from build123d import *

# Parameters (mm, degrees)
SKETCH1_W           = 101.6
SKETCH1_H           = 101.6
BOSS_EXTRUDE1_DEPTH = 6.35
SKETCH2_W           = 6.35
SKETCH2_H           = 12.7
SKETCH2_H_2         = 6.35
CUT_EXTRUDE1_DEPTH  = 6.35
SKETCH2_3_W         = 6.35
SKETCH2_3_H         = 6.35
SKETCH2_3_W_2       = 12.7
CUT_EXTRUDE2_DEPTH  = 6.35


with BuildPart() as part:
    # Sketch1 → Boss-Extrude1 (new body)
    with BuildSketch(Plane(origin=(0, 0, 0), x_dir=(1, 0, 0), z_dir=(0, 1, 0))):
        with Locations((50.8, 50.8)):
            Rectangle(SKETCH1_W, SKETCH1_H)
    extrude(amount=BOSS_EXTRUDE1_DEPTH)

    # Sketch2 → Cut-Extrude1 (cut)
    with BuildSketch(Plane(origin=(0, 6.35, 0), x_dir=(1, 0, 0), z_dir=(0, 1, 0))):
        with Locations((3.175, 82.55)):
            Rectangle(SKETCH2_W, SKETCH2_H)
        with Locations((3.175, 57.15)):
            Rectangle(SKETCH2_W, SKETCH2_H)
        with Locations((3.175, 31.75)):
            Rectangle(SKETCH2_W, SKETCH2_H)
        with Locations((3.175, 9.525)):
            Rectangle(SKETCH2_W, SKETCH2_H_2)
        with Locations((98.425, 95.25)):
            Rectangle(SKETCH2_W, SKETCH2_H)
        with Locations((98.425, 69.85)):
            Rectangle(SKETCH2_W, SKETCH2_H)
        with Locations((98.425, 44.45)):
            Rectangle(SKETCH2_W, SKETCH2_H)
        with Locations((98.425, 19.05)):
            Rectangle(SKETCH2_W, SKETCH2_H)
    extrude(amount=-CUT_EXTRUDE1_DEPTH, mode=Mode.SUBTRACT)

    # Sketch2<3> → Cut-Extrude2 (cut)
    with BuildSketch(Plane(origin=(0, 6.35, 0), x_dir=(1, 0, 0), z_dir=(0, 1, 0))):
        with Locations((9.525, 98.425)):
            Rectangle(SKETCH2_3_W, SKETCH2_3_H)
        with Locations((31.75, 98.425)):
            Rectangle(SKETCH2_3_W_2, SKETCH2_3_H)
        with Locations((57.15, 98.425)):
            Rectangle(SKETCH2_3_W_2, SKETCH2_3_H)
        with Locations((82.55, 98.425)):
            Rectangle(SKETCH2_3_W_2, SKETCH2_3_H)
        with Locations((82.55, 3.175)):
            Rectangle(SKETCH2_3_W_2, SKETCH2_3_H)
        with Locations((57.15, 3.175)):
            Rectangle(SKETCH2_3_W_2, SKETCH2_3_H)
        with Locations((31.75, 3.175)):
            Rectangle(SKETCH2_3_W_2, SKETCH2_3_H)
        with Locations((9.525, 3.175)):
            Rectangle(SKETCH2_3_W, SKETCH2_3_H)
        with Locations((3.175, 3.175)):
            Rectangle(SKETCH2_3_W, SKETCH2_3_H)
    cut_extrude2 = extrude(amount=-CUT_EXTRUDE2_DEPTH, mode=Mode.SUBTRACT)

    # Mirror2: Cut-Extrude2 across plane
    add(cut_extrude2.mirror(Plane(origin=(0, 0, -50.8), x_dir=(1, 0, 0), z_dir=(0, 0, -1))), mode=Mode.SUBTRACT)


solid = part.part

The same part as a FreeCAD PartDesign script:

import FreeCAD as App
import Part
import Sketcher
Q = App.Units.Quantity


def add_polygon(sketch, points):
    """Adds a closed chain of lines whose ends are joined by coincident constraints."""
    first, n = sketch.GeometryCount, len(points)
    for a, b in zip(points, points[1:] + points[:1]):
        sketch.addGeometry(Part.LineSegment(App.Vector(*a, 0), App.Vector(*b, 0)), False)
    for i in range(n):
        sketch.addConstraint(Sketcher.Constraint("Coincident", first + i, 2, first + (i + 1) % n, 1))

doc = App.newDocument("Part")
body = doc.addObject("PartDesign::Body", "Body")

# Sketch on XZ plane
sketch1 = body.newObject("Sketcher::SketchObject", "Sketch")
sketch1.AttachmentSupport = (doc.getObject("XZ_Plane"), [""])
sketch1.MapMode = "FlatFace"
add_polygon(sketch1, [(0, -102), (0, 0), (102, 0), (102, -102)])  # lines 0-3
sketch1.addConstraint(Sketcher.Constraint("Vertical", 0))
sketch1.addConstraint(Sketcher.Constraint("Horizontal", 1))
sketch1.addConstraint(Sketcher.Constraint("Vertical", 2))
sketch1.addConstraint(Sketcher.Constraint("Horizontal", 3))
sketch1.addConstraint(Sketcher.Constraint("Coincident", 0, 2, -1, 1))
sketch1.addConstraint(Sketcher.Constraint("Equal", 3, 0))
sketch1.addConstraint(Sketcher.Constraint("DistanceX", 1, 1, 1, 2, Q("4 in")))
pad1 = body.newObject("PartDesign::Pad", "Pad")
pad1.Profile = sketch1
pad1.Length = Q("0.25 in")
pad1.Reversed = True

# Sketch on XZ plane
sketch2 = body.newObject("Sketcher::SketchObject", "Sketch001")
sketch2.AttachmentSupport = (doc.getObject("XZ_Plane"), [""])
sketch2.MapMode = "FlatFace"
sketch2.AttachmentOffset = App.Placement(App.Vector(0, 0, -0.25 * 25.4), App.Rotation())
add_polygon(sketch2, [(0, -89), (0, -76), (6, -76), (6, -89)])  # lines 0-3
add_polygon(sketch2, [(0, -64), (0, -51), (6, -51), (6, -64)])  # lines 4-7
add_polygon(sketch2, [(0, -38), (0, -25), (6, -25), (6, -38)])  # lines 8-11
add_polygon(sketch2, [(0, -13), (0, -6), (6, -6), (6, -13)])  # lines 12-15
add_polygon(sketch2, [(95, -102), (95, -89), (102, -89), (102, -102)])  # lines 16-19
add_polygon(sketch2, [(95, -76), (95, -64), (102, -64), (102, -76)])  # lines 20-23
add_polygon(sketch2, [(95, -51), (95, -38), (102, -38), (102, -51)])  # lines 24-27
add_polygon(sketch2, [(95, -25), (95, -13), (102, -13), (102, -25)])  # lines 28-31
sketch2.addConstraint(Sketcher.Constraint("Vertical", 0))
sketch2.addConstraint(Sketcher.Constraint("Horizontal", 1))
sketch2.addConstraint(Sketcher.Constraint("Vertical", 2))
sketch2.addConstraint(Sketcher.Constraint("Horizontal", 3))
sketch2.addConstraint(Sketcher.Constraint("Vertical", 4))
sketch2.addConstraint(Sketcher.Constraint("Horizontal", 5))
sketch2.addConstraint(Sketcher.Constraint("Vertical", 6))
sketch2.addConstraint(Sketcher.Constraint("Horizontal", 7))
sketch2.addConstraint(Sketcher.Constraint("Vertical", 8))
sketch2.addConstraint(Sketcher.Constraint("Horizontal", 9))
sketch2.addConstraint(Sketcher.Constraint("Vertical", 10))
sketch2.addConstraint(Sketcher.Constraint("Horizontal", 11))
sketch2.addConstraint(Sketcher.Constraint("Vertical", 12))
sketch2.addConstraint(Sketcher.Constraint("Horizontal", 13))
sketch2.addConstraint(Sketcher.Constraint("Vertical", 14))
sketch2.addConstraint(Sketcher.Constraint("Horizontal", 15))
sketch2.addConstraint(Sketcher.Constraint("Vertical", 16))
sketch2.addConstraint(Sketcher.Constraint("Horizontal", 17))
sketch2.addConstraint(Sketcher.Constraint("Vertical", 18))
sketch2.addConstraint(Sketcher.Constraint("Horizontal", 19))
sketch2.addConstraint(Sketcher.Constraint("Vertical", 20))
sketch2.addConstraint(Sketcher.Constraint("Horizontal", 21))
sketch2.addConstraint(Sketcher.Constraint("Vertical", 22))
sketch2.addConstraint(Sketcher.Constraint("Horizontal", 23))
sketch2.addConstraint(Sketcher.Constraint("Vertical", 24))
sketch2.addConstraint(Sketcher.Constraint("Horizontal", 25))
sketch2.addConstraint(Sketcher.Constraint("Vertical", 26))
sketch2.addConstraint(Sketcher.Constraint("Horizontal", 27))
sketch2.addConstraint(Sketcher.Constraint("Vertical", 28))
sketch2.addConstraint(Sketcher.Constraint("Horizontal", 29))
sketch2.addConstraint(Sketcher.Constraint("Vertical", 30))
sketch2.addConstraint(Sketcher.Constraint("Horizontal", 31))
sketch2.addConstraint(Sketcher.Constraint("PointOnObject", 0, 2, -2))
sketch2.addConstraint(Sketcher.Constraint("PointOnObject", 4, 2, -2))
sketch2.addConstraint(Sketcher.Constraint("PointOnObject", 8, 2, -2))
sketch2.addConstraint(Sketcher.Constraint("PointOnObject", 12, 2, -2))
sketch2.addConstraint(Sketcher.Constraint("Horizontal", 3, 2, 16, 2))
sketch2.addConstraint(Sketcher.Constraint("Horizontal", 7, 2, 20, 2))
sketch2.addConstraint(Sketcher.Constraint("Horizontal", 1, 2, 22, 2))
sketch2.addConstraint(Sketcher.Constraint("Horizontal", 11, 2, 24, 2))
sketch2.addConstraint(Sketcher.Constraint("Horizontal", 5, 2, 26, 2))
sketch2.addConstraint(Sketcher.Constraint("Horizontal", 15, 2, 28, 2))
sketch2.addConstraint(Sketcher.Constraint("Horizontal", 9, 2, 30, 2))
sketch2.addConstraint(Sketcher.Constraint("Vertical", 2, 2, 5, 2))
sketch2.addConstraint(Sketcher.Constraint("Vertical", 6, 2, 9, 2))
sketch2.addConstraint(Sketcher.Constraint("Vertical", 10, 2, 13, 2))
sketch2.addConstraint(Sketcher.Constraint("Vertical", 19, 2, 20, 2))
sketch2.addConstraint(Sketcher.Constraint("Vertical", 18, 2, 21, 2))
sketch2.addConstraint(Sketcher.Constraint("Vertical", 23, 2, 24, 2))
sketch2.addConstraint(Sketcher.Constraint("Vertical", 22, 2, 25, 2))
sketch2.addConstraint(Sketcher.Constraint("Vertical", 27, 2, 28, 2))
sketch2.addConstraint(Sketcher.Constraint("Vertical", 26, 2, 29, 2))
sketch2.addConstraint(Sketcher.Constraint("Equal", 15, 17))
sketch2.addConstraint(Sketcher.Constraint("Equal", 2, 4))
sketch2.addConstraint(Sketcher.Constraint("Equal", 6, 8))
sketch2.addConstraint(Sketcher.Constraint("Equal", 31, 12))
sketch2.addConstraint(Sketcher.Constraint("Equal", 10, 16))
sketch2.addConstraint(Sketcher.Constraint("Equal", 18, 20))
sketch2.addConstraint(Sketcher.Constraint("Equal", 22, 24))
sketch2.addConstraint(Sketcher.Constraint("Equal", 26, 28))
sketch2.addConstraint(Sketcher.Constraint("DistanceY", 0, 1, 0, 2, Q("0.5 in")))
sketch2.addConstraint(Sketcher.Constraint("DistanceY", 0, 2, -1, 1, Q("3 in")))
sketch2.addConstraint(Sketcher.Constraint("DistanceX", -1, 1, 17, 2, Q("4 in")))
sketch2.addConstraint(Sketcher.Constraint("DistanceX", 1, 1, 1, 2, Q("0.25 in")))
pocket1 = body.newObject("PartDesign::Pocket", "Pocket")
pocket1.Profile = sketch2
pocket1.Length = Q("0.25 in")
pocket1.Reversed = True

# Sketch on XZ plane
sketch3 = body.newObject("Sketcher::SketchObject", "Sketch002")
sketch3.AttachmentSupport = (doc.getObject("XZ_Plane"), [""])
sketch3.MapMode = "FlatFace"
sketch3.AttachmentOffset = App.Placement(App.Vector(0, 0, -0.25 * 25.4), App.Rotation())
add_polygon(sketch3, [(6, -102), (6, -95), (13, -95), (13, -102)])  # lines 0-3
add_polygon(sketch3, [(25, -102), (25, -95), (38, -95), (38, -102)])  # lines 4-7
add_polygon(sketch3, [(51, -102), (51, -95), (64, -95), (64, -102)])  # lines 8-11
add_polygon(sketch3, [(76, -102), (76, -95), (89, -95), (89, -102)])  # lines 12-15
add_polygon(sketch3, [(76, -6), (76, 0), (89, 0), (89, -6)])  # lines 16-19
add_polygon(sketch3, [(51, -6), (51, 0), (64, 0), (64, -6)])  # lines 20-23
add_polygon(sketch3, [(25, -6), (25, 0), (38, 0), (38, -6)])  # lines 24-27
add_polygon(sketch3, [(13, 0), (13, -6), (0, -6), (0, 0)])  # lines 28-31
sketch3.addConstraint(Sketcher.Constraint("Vertical", 0))
sketch3.addConstraint(Sketcher.Constraint("Horizontal", 1))
sketch3.addConstraint(Sketcher.Constraint("Vertical", 2))
sketch3.addConstraint(Sketcher.Constraint("Horizontal", 3))
sketch3.addConstraint(Sketcher.Constraint("Vertical", 4))
sketch3.addConstraint(Sketcher.Constraint("Horizontal", 5))
sketch3.addConstraint(Sketcher.Constraint("Vertical", 6))
sketch3.addConstraint(Sketcher.Constraint("Horizontal", 7))
sketch3.addConstraint(Sketcher.Constraint("Vertical", 8))
sketch3.addConstraint(Sketcher.Constraint("Horizontal", 9))
sketch3.addConstraint(Sketcher.Constraint("Vertical", 10))
sketch3.addConstraint(Sketcher.Constraint("Horizontal", 11))
sketch3.addConstraint(Sketcher.Constraint("Vertical", 12))
sketch3.addConstraint(Sketcher.Constraint("Horizontal", 13))
sketch3.addConstraint(Sketcher.Constraint("Vertical", 14))
sketch3.addConstraint(Sketcher.Constraint("Horizontal", 15))
sketch3.addConstraint(Sketcher.Constraint("Vertical", 16))
sketch3.addConstraint(Sketcher.Constraint("Horizontal", 17))
sketch3.addConstraint(Sketcher.Constraint("Vertical", 18))
sketch3.addConstraint(Sketcher.Constraint("Horizontal", 19))
sketch3.addConstraint(Sketcher.Constraint("Vertical", 20))
sketch3.addConstraint(Sketcher.Constraint("Horizontal", 21))
sketch3.addConstraint(Sketcher.Constraint("Vertical", 22))
sketch3.addConstraint(Sketcher.Constraint("Horizontal", 23))
sketch3.addConstraint(Sketcher.Constraint("Vertical", 24))
sketch3.addConstraint(Sketcher.Constraint("Horizontal", 25))
sketch3.addConstraint(Sketcher.Constraint("Vertical", 26))
sketch3.addConstraint(Sketcher.Constraint("Horizontal", 27))
sketch3.addConstraint(Sketcher.Constraint("Vertical", 28))
sketch3.addConstraint(Sketcher.Constraint("Horizontal", 29))
sketch3.addConstraint(Sketcher.Constraint("Vertical", 30))
sketch3.addConstraint(Sketcher.Constraint("Horizontal", 31))
sketch3.addConstraint(Sketcher.Constraint("Coincident", 30, 2, -1, 1))
sketch3.addConstraint(Sketcher.Constraint("PointOnObject", 16, 2, -1))
sketch3.addConstraint(Sketcher.Constraint("PointOnObject", 20, 2, -1))
sketch3.addConstraint(Sketcher.Constraint("PointOnObject", 24, 2, -1))
sketch3.addConstraint(Sketcher.Constraint("Horizontal", 1, 2, 4, 2))
sketch3.addConstraint(Sketcher.Constraint("Horizontal", 3, 2, 6, 2))
sketch3.addConstraint(Sketcher.Constraint("Horizontal", 5, 2, 8, 2))
sketch3.addConstraint(Sketcher.Constraint("Horizontal", 7, 2, 10, 2))
sketch3.addConstraint(Sketcher.Constraint("Horizontal", 9, 2, 12, 2))
sketch3.addConstraint(Sketcher.Constraint("Horizontal", 11, 2, 14, 2))
sketch3.addConstraint(Sketcher.Constraint("Horizontal", 19, 2, 22, 2))
sketch3.addConstraint(Sketcher.Constraint("Horizontal", 23, 2, 26, 2))
sketch3.addConstraint(Sketcher.Constraint("Horizontal", 27, 2, 28, 2))
sketch3.addConstraint(Sketcher.Constraint("Vertical", 15, 2, 16, 2))
sketch3.addConstraint(Sketcher.Constraint("Vertical", 14, 2, 17, 2))
sketch3.addConstraint(Sketcher.Constraint("Vertical", 11, 2, 20, 2))
sketch3.addConstraint(Sketcher.Constraint("Vertical", 10, 2, 21, 2))
sketch3.addConstraint(Sketcher.Constraint("Vertical", 7, 2, 24, 2))
sketch3.addConstraint(Sketcher.Constraint("Vertical", 6, 2, 25, 2))
sketch3.addConstraint(Sketcher.Constraint("Vertical", 2, 2, 28, 2))
sketch3.addConstraint(Sketcher.Constraint("Equal", 7, 9))
sketch3.addConstraint(Sketcher.Constraint("Equal", 11, 13))
sketch3.addConstraint(Sketcher.Constraint("Equal", 27, 29))
sketch3.addConstraint(Sketcher.Constraint("Equal", 3, 0))
sketch3.addConstraint(Sketcher.Constraint("Equal", 14, 16))
sketch3.addConstraint(Sketcher.Constraint("DistanceX", 5, 1, 5, 2, Q("0.5 in")))
sketch3.addConstraint(Sketcher.Constraint("DistanceY", 2, 2, -1, 1, Q("4 in")))
sketch3.addConstraint(Sketcher.Constraint("DistanceX", -1, 1, 4, 2, Q("1 in")))
sketch3.addConstraint(Sketcher.Constraint("DistanceX", -1, 1, 8, 2, Q("2 in")))
sketch3.addConstraint(Sketcher.Constraint("DistanceX", -1, 1, 12, 2, Q("3 in")))
sketch3.addConstraint(Sketcher.Constraint("DistanceX", 1, 1, 1, 2, Q("0.25 in")))
pocket2 = body.newObject("PartDesign::Pocket", "Pocket001")
pocket2.Profile = sketch3
pocket2.Length = Q("0.25 in")
pocket2.Reversed = True
doc.recompute()

datumplane = body.newObject("PartDesign::Plane", "DatumPlane")
datumplane.AttachmentSupport = (doc.getObject("XY_Plane"), [""])
datumplane.MapMode = "FlatFace"
datumplane.AttachmentOffset = App.Placement(App.Vector(0, 0, -2 * 25.4), App.Rotation())
mirrored = body.newObject("PartDesign::Mirrored", "Mirrored")
mirrored.Originals = [pocket2]
mirrored.MirrorPlane = (datumplane, [""])
body.Tip = mirrored

doc.recompute()
